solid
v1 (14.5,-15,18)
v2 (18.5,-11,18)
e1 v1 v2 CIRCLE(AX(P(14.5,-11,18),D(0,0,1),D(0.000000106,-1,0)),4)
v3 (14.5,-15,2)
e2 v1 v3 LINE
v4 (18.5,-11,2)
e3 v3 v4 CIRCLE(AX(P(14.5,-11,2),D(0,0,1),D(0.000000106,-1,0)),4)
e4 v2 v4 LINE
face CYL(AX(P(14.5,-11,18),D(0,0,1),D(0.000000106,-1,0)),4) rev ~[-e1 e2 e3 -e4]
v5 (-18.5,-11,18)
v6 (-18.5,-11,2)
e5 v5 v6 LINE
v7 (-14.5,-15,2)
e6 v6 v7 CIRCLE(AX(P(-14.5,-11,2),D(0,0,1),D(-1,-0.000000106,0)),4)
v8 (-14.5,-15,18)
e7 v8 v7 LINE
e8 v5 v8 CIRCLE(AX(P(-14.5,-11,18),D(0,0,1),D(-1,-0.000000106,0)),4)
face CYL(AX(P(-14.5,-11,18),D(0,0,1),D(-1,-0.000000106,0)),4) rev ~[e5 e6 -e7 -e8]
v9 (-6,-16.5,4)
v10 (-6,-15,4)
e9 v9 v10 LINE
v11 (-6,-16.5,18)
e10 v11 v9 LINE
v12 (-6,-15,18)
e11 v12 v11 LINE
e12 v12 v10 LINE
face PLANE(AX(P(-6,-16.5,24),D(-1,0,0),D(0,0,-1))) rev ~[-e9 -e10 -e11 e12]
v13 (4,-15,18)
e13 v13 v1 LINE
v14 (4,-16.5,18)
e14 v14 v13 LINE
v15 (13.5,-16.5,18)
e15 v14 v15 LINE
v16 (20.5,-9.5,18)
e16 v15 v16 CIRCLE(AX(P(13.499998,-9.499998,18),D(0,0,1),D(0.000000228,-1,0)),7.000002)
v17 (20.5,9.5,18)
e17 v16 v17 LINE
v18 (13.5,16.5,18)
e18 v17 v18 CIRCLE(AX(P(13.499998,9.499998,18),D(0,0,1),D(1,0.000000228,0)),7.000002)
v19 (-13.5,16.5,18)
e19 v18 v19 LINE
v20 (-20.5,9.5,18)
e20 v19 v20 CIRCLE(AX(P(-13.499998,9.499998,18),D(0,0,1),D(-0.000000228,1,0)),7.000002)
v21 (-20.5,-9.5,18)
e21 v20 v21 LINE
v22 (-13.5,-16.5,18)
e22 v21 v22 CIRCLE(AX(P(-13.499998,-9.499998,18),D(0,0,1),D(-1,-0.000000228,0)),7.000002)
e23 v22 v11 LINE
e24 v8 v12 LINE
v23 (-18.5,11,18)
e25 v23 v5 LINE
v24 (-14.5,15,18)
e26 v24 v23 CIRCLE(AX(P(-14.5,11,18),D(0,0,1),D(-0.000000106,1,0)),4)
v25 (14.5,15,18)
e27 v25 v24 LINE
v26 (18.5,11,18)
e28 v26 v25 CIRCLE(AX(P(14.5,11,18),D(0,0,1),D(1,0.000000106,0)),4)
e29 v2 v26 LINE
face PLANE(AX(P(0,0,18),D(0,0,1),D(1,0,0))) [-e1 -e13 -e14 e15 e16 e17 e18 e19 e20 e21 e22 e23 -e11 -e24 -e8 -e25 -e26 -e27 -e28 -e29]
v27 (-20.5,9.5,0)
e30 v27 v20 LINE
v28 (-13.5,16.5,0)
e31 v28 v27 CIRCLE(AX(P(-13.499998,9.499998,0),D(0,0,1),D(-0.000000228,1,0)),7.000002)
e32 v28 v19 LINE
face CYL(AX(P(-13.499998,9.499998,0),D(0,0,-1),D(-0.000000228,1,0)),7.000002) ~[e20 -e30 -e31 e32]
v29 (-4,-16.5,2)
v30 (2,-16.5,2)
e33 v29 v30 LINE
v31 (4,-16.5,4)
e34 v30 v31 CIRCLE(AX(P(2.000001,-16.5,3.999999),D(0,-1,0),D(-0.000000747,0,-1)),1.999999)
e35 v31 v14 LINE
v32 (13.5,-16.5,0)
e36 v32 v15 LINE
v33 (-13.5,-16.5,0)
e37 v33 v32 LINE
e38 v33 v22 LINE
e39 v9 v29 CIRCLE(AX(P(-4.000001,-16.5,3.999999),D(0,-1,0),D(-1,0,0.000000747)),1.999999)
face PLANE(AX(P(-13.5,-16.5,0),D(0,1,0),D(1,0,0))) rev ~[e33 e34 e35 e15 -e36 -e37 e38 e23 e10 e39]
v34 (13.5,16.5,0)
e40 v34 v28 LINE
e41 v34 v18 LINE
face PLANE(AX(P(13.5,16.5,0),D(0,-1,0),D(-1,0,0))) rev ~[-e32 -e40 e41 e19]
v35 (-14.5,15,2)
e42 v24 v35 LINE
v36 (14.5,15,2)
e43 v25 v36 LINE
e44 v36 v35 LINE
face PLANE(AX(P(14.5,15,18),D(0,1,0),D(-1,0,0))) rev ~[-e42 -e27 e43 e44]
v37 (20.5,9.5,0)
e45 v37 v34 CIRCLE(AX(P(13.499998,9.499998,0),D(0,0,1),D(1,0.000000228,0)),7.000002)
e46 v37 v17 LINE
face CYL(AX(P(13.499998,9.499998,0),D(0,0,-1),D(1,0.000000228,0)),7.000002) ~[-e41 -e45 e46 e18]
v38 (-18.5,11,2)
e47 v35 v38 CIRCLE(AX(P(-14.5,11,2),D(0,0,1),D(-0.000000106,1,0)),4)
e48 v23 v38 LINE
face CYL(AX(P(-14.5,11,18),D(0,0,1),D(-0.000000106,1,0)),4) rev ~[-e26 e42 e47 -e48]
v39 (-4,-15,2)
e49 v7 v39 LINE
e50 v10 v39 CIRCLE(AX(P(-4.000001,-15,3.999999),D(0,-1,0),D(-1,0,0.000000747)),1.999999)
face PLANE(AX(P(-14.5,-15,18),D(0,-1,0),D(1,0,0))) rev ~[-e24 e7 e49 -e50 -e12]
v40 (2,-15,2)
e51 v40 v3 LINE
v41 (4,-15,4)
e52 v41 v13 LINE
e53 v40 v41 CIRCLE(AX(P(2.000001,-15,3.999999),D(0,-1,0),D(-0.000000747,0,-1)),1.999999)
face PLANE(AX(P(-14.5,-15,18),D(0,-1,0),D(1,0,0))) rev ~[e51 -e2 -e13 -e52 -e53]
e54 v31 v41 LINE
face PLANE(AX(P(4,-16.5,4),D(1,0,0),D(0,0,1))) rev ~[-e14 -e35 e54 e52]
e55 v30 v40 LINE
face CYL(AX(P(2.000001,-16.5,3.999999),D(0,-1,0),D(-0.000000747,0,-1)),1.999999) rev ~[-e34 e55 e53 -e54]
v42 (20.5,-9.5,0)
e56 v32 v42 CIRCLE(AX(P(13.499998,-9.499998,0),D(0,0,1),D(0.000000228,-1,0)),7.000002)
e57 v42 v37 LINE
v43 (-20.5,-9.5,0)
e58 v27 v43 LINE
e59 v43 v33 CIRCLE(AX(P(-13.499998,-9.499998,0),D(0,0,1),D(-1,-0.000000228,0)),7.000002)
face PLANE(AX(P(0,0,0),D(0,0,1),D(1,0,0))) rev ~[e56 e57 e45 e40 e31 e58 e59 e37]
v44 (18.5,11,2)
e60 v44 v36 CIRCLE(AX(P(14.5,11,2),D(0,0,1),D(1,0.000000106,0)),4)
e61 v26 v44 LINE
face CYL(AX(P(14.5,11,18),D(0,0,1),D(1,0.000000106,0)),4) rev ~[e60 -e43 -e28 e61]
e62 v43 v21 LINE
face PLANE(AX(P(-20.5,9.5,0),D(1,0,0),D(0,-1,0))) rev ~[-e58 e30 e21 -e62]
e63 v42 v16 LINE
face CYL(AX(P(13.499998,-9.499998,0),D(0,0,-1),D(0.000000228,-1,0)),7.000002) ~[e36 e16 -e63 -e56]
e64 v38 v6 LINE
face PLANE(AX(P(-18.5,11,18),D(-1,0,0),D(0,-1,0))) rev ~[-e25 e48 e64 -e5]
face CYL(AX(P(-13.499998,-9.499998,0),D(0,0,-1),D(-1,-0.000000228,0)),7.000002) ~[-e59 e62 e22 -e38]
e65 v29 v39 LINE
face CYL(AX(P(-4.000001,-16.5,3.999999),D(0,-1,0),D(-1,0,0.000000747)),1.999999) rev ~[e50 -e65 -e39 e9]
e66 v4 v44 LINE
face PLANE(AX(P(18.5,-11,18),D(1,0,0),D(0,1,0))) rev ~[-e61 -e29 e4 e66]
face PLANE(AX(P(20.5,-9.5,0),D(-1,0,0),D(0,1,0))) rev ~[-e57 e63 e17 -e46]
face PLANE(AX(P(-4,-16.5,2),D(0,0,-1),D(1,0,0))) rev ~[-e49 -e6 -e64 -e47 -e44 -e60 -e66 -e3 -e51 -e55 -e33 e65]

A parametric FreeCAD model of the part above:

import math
import FreeCAD as App
import Part
import Sketcher

doc = App.newDocument("Part")
body = doc.addObject("PartDesign::Body", "Body")

# Sketch on XY plane
sketch1 = doc.addObject("Sketcher::SketchObject", "Sketch")
body.addObject(sketch1)
sketch1.AttachmentSupport = (doc.XY_Plane, [""])
sketch1.MapMode = "FlatFace"
sketch1.addGeometry([
    Part.LineSegment(App.Vector(-14, -16, 0), App.Vector(14, -16, 0)),  # 0
    Part.ArcOfCircle(Part.Circle(App.Vector(13, -9, 0), App.Vector(0, 0, 1), 7), math.radians(-90), math.radians(0)),  # 1
    Part.LineSegment(App.Vector(20, -10, 0), App.Vector(20, 10, 0)),  # 2
    Part.ArcOfCircle(Part.Circle(App.Vector(13, 9, 0), App.Vector(0, 0, 1), 7), math.radians(0), math.radians(90)),  # 3
    Part.LineSegment(App.Vector(14, 16, 0), App.Vector(-14, 16, 0)),  # 4
    Part.ArcOfCircle(Part.Circle(App.Vector(-13, 9, 0), App.Vector(0, 0, 1), 7), math.radians(90), math.radians(180)),  # 5
    Part.LineSegment(App.Vector(-20, 10, 0), App.Vector(-20, -10, 0)),  # 6
    Part.ArcOfCircle(Part.Circle(App.Vector(-13, -9, 0), App.Vector(0, 0, 1), 7), math.radians(-180), math.radians(-90)),  # 7
], False)
sketch1.addConstraint([
    Sketcher.Constraint("Tangent", 0, 2, 1, 1),
    Sketcher.Constraint("Tangent", 1, 2, 2, 1),
    Sketcher.Constraint("Tangent", 2, 2, 3, 1),
    Sketcher.Constraint("Tangent", 3, 2, 4, 1),
    Sketcher.Constraint("Tangent", 4, 2, 5, 1),
    Sketcher.Constraint("Tangent", 5, 2, 6, 1),
    Sketcher.Constraint("Tangent", 6, 2, 7, 1),
    Sketcher.Constraint("Tangent", 7, 2, 0, 1),
    Sketcher.Constraint("Horizontal", 0),
    Sketcher.Constraint("Vertical", 2),
    Sketcher.Constraint("Horizontal", 4),
    Sketcher.Constraint("Vertical", 6),
    Sketcher.Constraint("Equal", 1, 3),
    Sketcher.Constraint("Equal", 3, 5),
    Sketcher.Constraint("Equal", 5, 7),
    Sketcher.Constraint("Symmetric", 1, 3, 5, 3, -1, 1),
    Sketcher.Constraint("Radius", 1, 7.000002),
    Sketcher.Constraint("DistanceX", 0, 1, 0, 2, 27.0),
    Sketcher.Constraint("DistanceY", 2, 1, 2, 2, 19.0),
])
pad1 = doc.addObject("PartDesign::Pad", "Pad")
body.addObject(pad1)
pad1.Profile = sketch1
pad1.Length = 18

# Sketch on XY plane
sketch2 = doc.addObject("Sketcher::SketchObject", "Sketch001")
body.addObject(sketch2)
sketch2.AttachmentSupport = (doc.XY_Plane, [""])
sketch2.MapMode = "FlatFace"
sketch2.AttachmentOffset = App.Placement(App.Vector(0, 0, 18), App.Rotation())
sketch2.addGeometry([
    Part.LineSegment(App.Vector(-18.5, 11, 0), App.Vector(-18.5, -11, 0)),  # 0
    Part.ArcOfCircle(Part.Circle(App.Vector(-14.5, -11, 0), App.Vector(0, 0, 1), 4), math.radians(-180), math.radians(-90)),  # 1
    Part.LineSegment(App.Vector(-14.5, -15, 0), App.Vector(14.5, -15, 0)),  # 2
    Part.ArcOfCircle(Part.Circle(App.Vector(14.5, -11, 0), App.Vector(0, 0, 1), 4), math.radians(-90), math.radians(0)),  # 3
    Part.LineSegment(App.Vector(18.5, -11, 0), App.Vector(18.5, 11, 0)),  # 4
    Part.ArcOfCircle(Part.Circle(App.Vector(14.5, 11, 0), App.Vector(0, 0, 1), 4), math.radians(0), math.radians(90)),  # 5
    Part.LineSegment(App.Vector(14.5, 15, 0), App.Vector(-14.5, 15, 0)),  # 6
    Part.ArcOfCircle(Part.Circle(App.Vector(-14.5, 11, 0), App.Vector(0, 0, 1), 4), math.radians(90), math.radians(180)),  # 7
], False)
sketch2.addConstraint([
    Sketcher.Constraint("Tangent", 0, 2, 1, 1),
    Sketcher.Constraint("Tangent", 1, 2, 2, 1),
    Sketcher.Constraint("Tangent", 2, 2, 3, 1),
    Sketcher.Constraint("Tangent", 3, 2, 4, 1),
    Sketcher.Constraint("Tangent", 4, 2, 5, 1),
    Sketcher.Constraint("Tangent", 5, 2, 6, 1),
    Sketcher.Constraint("Tangent", 6, 2, 7, 1),
    Sketcher.Constraint("Tangent", 7, 2, 0, 1),
    Sketcher.Constraint("Vertical", 0),
    Sketcher.Constraint("Horizontal", 2),
    Sketcher.Constraint("Vertical", 4),
    Sketcher.Constraint("Horizontal", 6),
    Sketcher.Constraint("Equal", 1, 3),
    Sketcher.Constraint("Equal", 3, 5),
    Sketcher.Constraint("Equal", 5, 7),
    Sketcher.Constraint("Symmetric", 1, 3, 5, 3, -1, 1),
    Sketcher.Constraint("Radius", 1, 4.0),
    Sketcher.Constraint("DistanceX", 2, 1, 2, 2, 29.0),
    Sketcher.Constraint("DistanceY", 0, 2, 0, 1, 22.0),
])
pocket1 = doc.addObject("PartDesign::Pocket", "Pocket")
body.addObject(pocket1)
pocket1.Profile = sketch2
pocket1.Length = 16

# Sketch on XZ plane
sketch3 = doc.addObject("Sketcher::SketchObject", "Sketch002")
body.addObject(sketch3)
sketch3.AttachmentSupport = (doc.XZ_Plane, [""])
sketch3.MapMode = "FlatFace"
sketch3.AttachmentOffset = App.Placement(App.Vector(0, 0, 16.5), App.Rotation())
sketch3.addGeometry([
    Part.LineSegment(App.Vector(-6, 24, 0), App.Vector(-6, 4, 0)),  # 0
    Part.ArcOfCircle(Part.Circle(App.Vector(-4, 4, 0), App.Vector(0, 0, 1), 2), math.radians(180), math.radians(270)),  # 1
    Part.LineSegment(App.Vector(-4, 2, 0), App.Vector(2, 2, 0)),  # 2
    Part.ArcOfCircle(Part.Circle(App.Vector(2, 4, 0), App.Vector(0, 0, 1), 2), math.radians(-90), math.radians(0)),  # 3
    Part.LineSegment(App.Vector(4, 4, 0), App.Vector(4, 24, 0)),  # 4
    Part.ArcOfCircle(Part.Circle(App.Vector(2, 24, 0), App.Vector(0, 0, 1), 2), math.radians(0), math.radians(90)),  # 5
    Part.LineSegment(App.Vector(2, 26, 0), App.Vector(-4, 26, 0)),  # 6
    Part.ArcOfCircle(Part.Circle(App.Vector(-4, 24, 0), App.Vector(0, 0, 1), 2), math.radians(90), math.radians(180)),  # 7
], False)
sketch3.addConstraint([
    Sketcher.Constraint("Tangent", 0, 2, 1, 1),
    Sketcher.Constraint("Tangent", 1, 2, 2, 1),
    Sketcher.Constraint("Tangent", 2, 2, 3, 1),
    Sketcher.Constraint("Tangent", 3, 2, 4, 1),
    Sketcher.Constraint("Tangent", 4, 2, 5, 1),
    Sketcher.Constraint("Tangent", 5, 2, 6, 1),
    Sketcher.Constraint("Tangent", 6, 2, 7, 1),
    Sketcher.Constraint("Tangent", 7, 2, 0, 1),
    Sketcher.Constraint("Vertical", 0),
    Sketcher.Constraint("Horizontal", 2),
    Sketcher.Constraint("Vertical", 4),
    Sketcher.Constraint("Horizontal", 6),
    Sketcher.Constraint("Equal", 1, 3),
    Sketcher.Constraint("Equal", 3, 5),
    Sketcher.Constraint("Equal", 5, 7),
    Sketcher.Constraint("Radius", 1, 1.999999),
    Sketcher.Constraint("DistanceX", 2, 1, 2, 2, 6.0),
    Sketcher.Constraint("DistanceY", 0, 2, 0, 1, 20.0),
    Sketcher.Constraint("DistanceX", 1, 3, -1, 1, 4.000001),
    Sketcher.Constraint("DistanceY", -1, 1, 1, 3, 3.999999),
])
pocket2 = doc.addObject("PartDesign::Pocket", "Pocket001")
body.addObject(pocket2)
pocket2.Profile = sketch3
pocket2.Length = 5

doc.recompute()
